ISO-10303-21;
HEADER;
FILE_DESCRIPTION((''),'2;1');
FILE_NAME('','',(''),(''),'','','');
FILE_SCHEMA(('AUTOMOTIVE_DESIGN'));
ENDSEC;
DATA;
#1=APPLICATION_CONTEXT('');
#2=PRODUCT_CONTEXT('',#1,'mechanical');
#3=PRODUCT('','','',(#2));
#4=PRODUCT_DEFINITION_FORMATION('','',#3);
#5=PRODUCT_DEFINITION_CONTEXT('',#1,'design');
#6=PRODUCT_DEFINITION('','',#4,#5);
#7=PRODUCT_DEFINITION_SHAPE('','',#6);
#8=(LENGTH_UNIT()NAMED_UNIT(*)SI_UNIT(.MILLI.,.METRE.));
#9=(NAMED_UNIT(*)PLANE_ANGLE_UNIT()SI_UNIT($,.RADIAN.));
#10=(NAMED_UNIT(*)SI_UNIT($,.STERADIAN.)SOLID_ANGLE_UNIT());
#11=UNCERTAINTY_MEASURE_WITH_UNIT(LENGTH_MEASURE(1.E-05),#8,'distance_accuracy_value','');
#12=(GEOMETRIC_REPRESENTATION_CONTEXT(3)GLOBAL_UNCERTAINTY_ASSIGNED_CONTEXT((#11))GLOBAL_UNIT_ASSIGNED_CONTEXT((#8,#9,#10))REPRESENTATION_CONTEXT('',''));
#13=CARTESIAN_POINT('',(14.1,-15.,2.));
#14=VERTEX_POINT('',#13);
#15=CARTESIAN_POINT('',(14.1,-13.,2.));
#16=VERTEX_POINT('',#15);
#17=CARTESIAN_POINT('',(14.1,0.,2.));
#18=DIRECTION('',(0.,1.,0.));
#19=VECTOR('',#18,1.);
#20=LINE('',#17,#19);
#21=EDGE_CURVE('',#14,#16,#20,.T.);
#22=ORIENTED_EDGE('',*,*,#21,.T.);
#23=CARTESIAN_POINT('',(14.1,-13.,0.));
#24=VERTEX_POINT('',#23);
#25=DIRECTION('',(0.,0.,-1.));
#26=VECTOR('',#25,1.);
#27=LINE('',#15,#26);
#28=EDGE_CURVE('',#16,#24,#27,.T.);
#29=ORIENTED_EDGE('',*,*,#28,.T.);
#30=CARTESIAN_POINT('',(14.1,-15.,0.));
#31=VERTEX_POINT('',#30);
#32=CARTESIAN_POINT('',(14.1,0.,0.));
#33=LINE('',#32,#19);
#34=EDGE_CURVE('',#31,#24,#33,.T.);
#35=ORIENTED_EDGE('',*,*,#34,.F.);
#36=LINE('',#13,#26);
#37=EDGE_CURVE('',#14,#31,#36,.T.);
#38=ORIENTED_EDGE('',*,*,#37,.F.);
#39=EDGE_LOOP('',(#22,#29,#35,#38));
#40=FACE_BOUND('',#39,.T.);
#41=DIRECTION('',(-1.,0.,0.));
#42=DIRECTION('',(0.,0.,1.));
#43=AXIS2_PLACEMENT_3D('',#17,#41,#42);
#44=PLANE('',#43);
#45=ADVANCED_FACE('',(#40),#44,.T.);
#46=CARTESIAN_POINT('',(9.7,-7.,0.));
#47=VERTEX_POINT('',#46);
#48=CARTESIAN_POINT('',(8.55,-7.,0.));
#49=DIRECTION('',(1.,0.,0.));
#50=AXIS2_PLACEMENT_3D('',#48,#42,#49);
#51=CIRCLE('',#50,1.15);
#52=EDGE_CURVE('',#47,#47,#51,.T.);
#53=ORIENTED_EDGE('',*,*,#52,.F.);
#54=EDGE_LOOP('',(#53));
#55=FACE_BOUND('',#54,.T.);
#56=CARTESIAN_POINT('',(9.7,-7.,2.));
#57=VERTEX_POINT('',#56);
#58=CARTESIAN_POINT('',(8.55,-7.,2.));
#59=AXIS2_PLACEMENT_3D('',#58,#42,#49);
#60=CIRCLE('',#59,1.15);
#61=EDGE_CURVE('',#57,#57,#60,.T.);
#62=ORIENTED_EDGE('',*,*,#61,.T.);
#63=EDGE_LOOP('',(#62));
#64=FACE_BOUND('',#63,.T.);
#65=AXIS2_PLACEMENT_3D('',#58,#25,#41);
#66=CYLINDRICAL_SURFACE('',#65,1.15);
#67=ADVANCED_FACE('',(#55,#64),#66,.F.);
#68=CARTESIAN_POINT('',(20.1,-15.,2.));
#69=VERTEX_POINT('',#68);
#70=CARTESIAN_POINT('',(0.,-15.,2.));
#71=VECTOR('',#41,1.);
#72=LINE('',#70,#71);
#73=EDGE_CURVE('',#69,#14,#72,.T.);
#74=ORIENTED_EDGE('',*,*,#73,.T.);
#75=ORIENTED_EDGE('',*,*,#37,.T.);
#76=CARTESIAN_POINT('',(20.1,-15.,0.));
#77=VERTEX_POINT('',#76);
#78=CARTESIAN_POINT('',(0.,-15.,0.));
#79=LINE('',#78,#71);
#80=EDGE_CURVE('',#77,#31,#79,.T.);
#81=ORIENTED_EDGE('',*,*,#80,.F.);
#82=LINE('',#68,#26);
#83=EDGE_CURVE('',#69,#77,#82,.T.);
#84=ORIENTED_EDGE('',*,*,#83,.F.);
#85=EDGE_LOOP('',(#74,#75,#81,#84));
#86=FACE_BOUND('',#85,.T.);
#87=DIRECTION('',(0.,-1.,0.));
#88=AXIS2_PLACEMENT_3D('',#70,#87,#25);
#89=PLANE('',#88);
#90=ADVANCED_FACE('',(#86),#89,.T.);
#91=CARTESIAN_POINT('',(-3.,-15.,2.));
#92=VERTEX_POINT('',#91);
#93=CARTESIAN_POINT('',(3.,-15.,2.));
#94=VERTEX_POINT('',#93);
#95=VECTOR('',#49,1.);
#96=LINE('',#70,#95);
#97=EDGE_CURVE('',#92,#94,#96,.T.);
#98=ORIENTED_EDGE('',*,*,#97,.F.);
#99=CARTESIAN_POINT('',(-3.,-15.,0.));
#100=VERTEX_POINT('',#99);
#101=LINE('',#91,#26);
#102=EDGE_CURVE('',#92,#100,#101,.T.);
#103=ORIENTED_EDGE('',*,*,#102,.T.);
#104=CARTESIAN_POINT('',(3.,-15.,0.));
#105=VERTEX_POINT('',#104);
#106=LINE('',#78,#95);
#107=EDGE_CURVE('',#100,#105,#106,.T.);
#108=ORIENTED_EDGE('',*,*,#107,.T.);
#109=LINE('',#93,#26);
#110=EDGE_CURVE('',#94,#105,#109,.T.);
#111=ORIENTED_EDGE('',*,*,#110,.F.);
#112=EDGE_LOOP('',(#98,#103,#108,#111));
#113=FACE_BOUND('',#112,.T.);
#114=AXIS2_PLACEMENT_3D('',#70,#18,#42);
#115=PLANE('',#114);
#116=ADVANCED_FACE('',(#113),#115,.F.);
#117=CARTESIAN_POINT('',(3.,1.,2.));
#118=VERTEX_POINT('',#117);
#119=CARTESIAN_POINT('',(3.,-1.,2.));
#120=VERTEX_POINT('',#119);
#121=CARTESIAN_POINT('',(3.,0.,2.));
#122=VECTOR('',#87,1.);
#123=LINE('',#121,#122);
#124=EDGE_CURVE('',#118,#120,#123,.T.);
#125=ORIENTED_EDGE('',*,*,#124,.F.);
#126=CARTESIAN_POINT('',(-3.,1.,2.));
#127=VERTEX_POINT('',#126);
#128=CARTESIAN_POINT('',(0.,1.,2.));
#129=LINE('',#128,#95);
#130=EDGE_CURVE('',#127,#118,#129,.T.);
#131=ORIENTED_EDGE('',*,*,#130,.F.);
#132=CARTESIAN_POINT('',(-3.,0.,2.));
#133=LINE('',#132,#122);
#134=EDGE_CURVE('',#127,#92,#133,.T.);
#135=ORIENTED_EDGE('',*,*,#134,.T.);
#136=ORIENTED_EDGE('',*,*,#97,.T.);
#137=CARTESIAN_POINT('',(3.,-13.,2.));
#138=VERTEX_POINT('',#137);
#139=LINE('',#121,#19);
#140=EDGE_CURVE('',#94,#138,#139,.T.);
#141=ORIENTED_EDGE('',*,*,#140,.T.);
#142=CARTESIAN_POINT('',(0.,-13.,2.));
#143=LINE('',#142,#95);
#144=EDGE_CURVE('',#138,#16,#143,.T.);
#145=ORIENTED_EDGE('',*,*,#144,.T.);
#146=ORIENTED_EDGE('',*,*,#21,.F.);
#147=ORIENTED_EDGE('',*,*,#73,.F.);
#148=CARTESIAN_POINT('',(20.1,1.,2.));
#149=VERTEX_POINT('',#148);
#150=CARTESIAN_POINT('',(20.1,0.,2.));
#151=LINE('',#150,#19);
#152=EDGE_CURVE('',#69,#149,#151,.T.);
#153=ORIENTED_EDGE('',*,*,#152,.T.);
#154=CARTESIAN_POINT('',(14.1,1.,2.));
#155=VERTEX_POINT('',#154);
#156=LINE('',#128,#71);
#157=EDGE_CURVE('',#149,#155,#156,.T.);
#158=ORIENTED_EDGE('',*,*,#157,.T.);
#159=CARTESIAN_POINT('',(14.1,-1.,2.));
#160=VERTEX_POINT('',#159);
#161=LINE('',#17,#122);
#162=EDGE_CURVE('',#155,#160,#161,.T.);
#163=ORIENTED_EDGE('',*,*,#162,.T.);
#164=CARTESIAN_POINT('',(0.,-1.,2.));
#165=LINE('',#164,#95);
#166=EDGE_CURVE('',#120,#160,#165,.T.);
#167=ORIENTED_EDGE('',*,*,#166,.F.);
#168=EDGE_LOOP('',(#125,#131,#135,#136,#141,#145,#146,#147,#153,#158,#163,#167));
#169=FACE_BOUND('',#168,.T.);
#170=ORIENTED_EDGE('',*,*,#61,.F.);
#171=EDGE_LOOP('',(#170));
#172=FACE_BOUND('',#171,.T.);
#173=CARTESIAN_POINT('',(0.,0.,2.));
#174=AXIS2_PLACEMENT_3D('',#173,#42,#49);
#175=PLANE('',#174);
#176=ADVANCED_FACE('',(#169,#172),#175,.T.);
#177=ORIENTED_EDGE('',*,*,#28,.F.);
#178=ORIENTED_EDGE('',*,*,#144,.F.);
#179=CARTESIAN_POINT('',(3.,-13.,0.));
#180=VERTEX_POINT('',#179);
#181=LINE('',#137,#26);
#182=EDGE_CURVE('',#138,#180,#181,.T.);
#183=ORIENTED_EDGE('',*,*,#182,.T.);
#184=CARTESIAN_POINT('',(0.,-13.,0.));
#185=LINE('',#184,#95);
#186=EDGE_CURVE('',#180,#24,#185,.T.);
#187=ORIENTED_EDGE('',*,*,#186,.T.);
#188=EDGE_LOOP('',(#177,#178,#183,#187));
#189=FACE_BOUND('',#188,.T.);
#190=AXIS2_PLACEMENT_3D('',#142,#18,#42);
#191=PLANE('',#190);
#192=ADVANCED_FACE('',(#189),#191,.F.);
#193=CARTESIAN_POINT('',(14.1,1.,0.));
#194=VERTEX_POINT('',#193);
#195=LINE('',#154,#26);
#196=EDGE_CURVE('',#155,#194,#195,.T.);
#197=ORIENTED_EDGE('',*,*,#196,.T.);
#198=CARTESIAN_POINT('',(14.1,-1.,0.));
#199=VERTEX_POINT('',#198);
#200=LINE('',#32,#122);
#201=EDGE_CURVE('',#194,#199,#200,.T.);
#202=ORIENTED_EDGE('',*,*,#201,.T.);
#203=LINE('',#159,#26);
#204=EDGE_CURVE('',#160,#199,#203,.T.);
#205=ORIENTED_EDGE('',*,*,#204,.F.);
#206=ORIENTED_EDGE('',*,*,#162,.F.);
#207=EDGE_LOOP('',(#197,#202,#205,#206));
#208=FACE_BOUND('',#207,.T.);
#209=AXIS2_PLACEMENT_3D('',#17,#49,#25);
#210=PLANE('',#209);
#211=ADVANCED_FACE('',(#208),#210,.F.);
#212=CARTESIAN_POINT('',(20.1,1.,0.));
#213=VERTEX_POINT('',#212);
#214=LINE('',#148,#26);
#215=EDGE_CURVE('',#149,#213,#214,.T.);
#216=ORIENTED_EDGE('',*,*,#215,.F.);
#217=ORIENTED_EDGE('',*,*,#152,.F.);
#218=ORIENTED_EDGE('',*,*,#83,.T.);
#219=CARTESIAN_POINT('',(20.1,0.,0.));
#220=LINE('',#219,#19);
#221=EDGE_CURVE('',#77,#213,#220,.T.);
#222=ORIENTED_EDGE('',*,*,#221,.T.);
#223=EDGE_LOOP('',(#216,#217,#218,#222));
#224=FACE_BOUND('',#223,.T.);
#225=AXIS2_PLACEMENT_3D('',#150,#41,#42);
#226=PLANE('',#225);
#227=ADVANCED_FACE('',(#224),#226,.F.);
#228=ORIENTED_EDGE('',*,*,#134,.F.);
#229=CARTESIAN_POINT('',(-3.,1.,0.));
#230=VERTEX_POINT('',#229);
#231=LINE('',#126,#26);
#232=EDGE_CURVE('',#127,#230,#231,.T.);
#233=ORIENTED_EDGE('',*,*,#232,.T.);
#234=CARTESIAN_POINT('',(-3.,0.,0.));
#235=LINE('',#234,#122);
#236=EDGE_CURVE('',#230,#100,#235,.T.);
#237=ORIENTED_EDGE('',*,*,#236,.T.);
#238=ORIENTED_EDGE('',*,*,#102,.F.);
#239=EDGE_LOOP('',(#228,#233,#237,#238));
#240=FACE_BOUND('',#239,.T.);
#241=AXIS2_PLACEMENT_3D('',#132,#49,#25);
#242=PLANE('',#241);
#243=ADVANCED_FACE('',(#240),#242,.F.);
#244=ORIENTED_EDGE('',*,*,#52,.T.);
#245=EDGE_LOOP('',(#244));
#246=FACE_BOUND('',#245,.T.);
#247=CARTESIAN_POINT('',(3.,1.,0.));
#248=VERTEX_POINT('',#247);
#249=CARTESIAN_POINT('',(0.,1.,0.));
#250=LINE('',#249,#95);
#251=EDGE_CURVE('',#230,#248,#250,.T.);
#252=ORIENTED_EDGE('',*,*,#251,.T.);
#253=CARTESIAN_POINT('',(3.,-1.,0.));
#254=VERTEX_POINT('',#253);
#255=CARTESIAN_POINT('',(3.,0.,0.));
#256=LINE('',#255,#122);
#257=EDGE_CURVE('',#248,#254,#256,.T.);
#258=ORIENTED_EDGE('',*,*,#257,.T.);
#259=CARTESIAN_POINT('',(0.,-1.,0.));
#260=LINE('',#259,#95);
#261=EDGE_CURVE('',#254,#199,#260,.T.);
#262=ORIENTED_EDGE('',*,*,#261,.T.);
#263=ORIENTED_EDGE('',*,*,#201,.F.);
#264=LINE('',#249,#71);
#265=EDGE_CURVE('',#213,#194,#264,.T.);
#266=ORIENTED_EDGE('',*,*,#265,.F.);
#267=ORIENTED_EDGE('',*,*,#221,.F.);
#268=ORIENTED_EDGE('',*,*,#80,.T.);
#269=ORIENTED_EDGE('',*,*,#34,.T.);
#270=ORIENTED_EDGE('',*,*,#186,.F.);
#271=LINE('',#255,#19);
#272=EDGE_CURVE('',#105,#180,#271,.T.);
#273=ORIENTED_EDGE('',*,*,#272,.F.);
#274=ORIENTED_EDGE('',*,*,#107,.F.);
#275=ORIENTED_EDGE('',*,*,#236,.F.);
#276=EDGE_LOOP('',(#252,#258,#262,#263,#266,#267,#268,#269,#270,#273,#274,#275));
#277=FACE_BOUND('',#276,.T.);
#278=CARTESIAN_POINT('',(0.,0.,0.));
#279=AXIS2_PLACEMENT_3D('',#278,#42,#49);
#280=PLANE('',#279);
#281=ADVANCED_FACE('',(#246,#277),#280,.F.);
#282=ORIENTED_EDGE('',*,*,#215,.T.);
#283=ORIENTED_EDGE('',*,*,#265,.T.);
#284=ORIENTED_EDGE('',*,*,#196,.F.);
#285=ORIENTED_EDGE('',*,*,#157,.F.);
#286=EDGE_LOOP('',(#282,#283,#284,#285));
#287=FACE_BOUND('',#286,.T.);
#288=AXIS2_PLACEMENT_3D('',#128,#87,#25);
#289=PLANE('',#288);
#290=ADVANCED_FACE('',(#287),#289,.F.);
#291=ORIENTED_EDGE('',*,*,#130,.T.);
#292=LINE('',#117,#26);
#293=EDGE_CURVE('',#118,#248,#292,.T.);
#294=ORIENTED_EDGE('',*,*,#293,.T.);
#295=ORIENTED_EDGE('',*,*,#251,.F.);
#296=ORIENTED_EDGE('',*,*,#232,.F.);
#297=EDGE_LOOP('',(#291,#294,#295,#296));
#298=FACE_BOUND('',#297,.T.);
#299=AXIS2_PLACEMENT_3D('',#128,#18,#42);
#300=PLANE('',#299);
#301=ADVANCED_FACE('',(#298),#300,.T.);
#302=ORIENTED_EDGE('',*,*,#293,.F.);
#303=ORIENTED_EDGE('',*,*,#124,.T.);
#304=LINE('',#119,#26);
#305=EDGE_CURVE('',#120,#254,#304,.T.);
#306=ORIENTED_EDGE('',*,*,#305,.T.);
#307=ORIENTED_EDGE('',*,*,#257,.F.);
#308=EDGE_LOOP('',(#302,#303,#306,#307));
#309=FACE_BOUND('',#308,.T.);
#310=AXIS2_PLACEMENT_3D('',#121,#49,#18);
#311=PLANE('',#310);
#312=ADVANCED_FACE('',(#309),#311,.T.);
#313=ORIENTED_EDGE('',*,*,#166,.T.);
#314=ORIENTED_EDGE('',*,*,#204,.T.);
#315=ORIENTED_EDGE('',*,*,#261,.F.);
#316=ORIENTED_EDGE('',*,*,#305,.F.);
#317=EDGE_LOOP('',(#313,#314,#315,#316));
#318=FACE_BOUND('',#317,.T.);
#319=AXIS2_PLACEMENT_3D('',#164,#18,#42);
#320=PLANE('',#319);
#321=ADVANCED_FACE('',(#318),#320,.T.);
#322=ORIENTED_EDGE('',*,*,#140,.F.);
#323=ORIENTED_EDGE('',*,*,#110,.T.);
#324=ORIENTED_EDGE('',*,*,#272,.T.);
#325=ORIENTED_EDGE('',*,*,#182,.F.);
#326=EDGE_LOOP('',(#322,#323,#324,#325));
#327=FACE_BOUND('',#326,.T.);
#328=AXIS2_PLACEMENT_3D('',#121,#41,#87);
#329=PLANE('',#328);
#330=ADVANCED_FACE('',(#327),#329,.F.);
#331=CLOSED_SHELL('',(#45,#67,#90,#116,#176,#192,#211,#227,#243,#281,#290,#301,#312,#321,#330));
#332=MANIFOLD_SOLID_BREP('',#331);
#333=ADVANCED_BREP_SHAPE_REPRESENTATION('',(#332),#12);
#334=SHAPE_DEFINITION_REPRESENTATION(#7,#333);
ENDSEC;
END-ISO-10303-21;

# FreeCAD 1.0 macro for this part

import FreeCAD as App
import Part
import Sketcher

V = App.Vector

doc = App.newDocument("Part")
params = doc.addObject("Spreadsheet::Sheet", "Params")
for row, (alias, value) in enumerate([
    ("sketch1_diameter", "2.3 mm"),
    ("sketch1_width", "6 mm"),
    ("sketch1_height", "16 mm"),
    ("sketch1_height2", "2 mm"),
    ("sketch1_width2", "11.1 mm"),
    ("pad1_length", "2 mm"),
], start=1):
    params.set(f"A{row}", alias)
    params.set(f"B{row}", "=" + value)
    params.setAlias(f"B{row}", alias)

body = doc.addObject("PartDesign::Body", "Body")

sketch1 = body.newObject("Sketcher::SketchObject", "Sketch")
sketch1.AttachmentSupport = (doc.getObject("XY_Plane"), [""])
sketch1.MapMode = "FlatFace"
sketch1.addGeometry([
    Part.LineSegment(V(3, 1, 0), V(-3, 1, 0)),
    Part.LineSegment(V(-3, 1, 0), V(-3, -15, 0)),
    Part.LineSegment(V(-3, -15, 0), V(3, -15, 0)),
    Part.LineSegment(V(3, -15, 0), V(3, -13, 0)),
    Part.LineSegment(V(3, -13, 0), V(14.1, -13, 0)),
    Part.LineSegment(V(14.1, -13, 0), V(14.1, -15, 0)),
    Part.LineSegment(V(14.1, -15, 0), V(20.1, -15, 0)),
    Part.LineSegment(V(20.1, -15, 0), V(20.1, 1, 0)),
    Part.LineSegment(V(20.1, 1, 0), V(14.1, 1, 0)),
    Part.LineSegment(V(14.1, 1, 0), V(14.1, -1, 0)),
    Part.LineSegment(V(14.1, -1, 0), V(3, -1, 0)),
    Part.LineSegment(V(3, -1, 0), V(3, 1, 0)),
    Part.Circle(V(8.6, -7, 0), V(0, 0, 1), 1.1),
], False)
sketch1.addConstraint([
    Sketcher.Constraint("Coincident", 0, 2, 1, 1),
    Sketcher.Constraint("Coincident", 1, 2, 2, 1),
    Sketcher.Constraint("Coincident", 2, 2, 3, 1),
    Sketcher.Constraint("Coincident", 3, 2, 4, 1),
    Sketcher.Constraint("Coincident", 4, 2, 5, 1),
    Sketcher.Constraint("Coincident", 5, 2, 6, 1),
    Sketcher.Constraint("Coincident", 6, 2, 7, 1),
    Sketcher.Constraint("Coincident", 7, 2, 8, 1),
    Sketcher.Constraint("Coincident", 8, 2, 9, 1),
    Sketcher.Constraint("Coincident", 9, 2, 10, 1),
    Sketcher.Constraint("Coincident", 10, 2, 11, 1),
    Sketcher.Constraint("Coincident", 11, 2, 0, 1),
    Sketcher.Constraint("Horizontal", 0),
    Sketcher.Constraint("Vertical", 1),
    Sketcher.Constraint("Horizontal", 2),
    Sketcher.Constraint("Vertical", 3),
    Sketcher.Constraint("Horizontal", 4),
    Sketcher.Constraint("Vertical", 5),
    Sketcher.Constraint("Horizontal", 6),
    Sketcher.Constraint("Vertical", 7),
    Sketcher.Constraint("Horizontal", 8),
    Sketcher.Constraint("Vertical", 9),
    Sketcher.Constraint("Horizontal", 10),
    Sketcher.Constraint("Vertical", 11),
    Sketcher.Constraint("Symmetric", 0, 2, 10, 2, -1, 1),
    Sketcher.Constraint("Horizontal", 2, 2, 5, 2),
    Sketcher.Constraint("Horizontal", 0, 2, 7, 2),
    Sketcher.Constraint("Vertical", 5, 2, 8, 2),
    Sketcher.Constraint("Vertical", 3, 2, 10, 2),
    Sketcher.Constraint("Equal", 2, 6),
    Sketcher.Constraint("Equal", 5, 9),
    Sketcher.Constraint("Diameter", 12, 2.3),
    Sketcher.Constraint("DistanceX", 0, 2, 0, 1, 6.0),
    Sketcher.Constraint("DistanceY", 1, 2, 1, 1, 16.0),
    Sketcher.Constraint("DistanceY", 3, 1, 3, 2, 2.0),
    Sketcher.Constraint("DistanceX", 4, 1, 4, 2, 11.1),
    Sketcher.Constraint("DistanceY", 12, 3, -1, 1, 7.0),
    Sketcher.Constraint("DistanceX", -1, 1, 12, 3, 8.55),
])
sketch1.setExpression("Constraints[31]", "Params.sketch1_diameter")
sketch1.setExpression("Constraints[32]", "Params.sketch1_width")
sketch1.setExpression("Constraints[33]", "Params.sketch1_height")
sketch1.setExpression("Constraints[34]", "Params.sketch1_height2")
sketch1.setExpression("Constraints[35]", "Params.sketch1_width2")
pad1 = body.newObject("PartDesign::Pad", "Pad")
pad1.Profile = sketch1
pad1.setExpression("Length", "Params.pad1_length")

doc.recompute()
